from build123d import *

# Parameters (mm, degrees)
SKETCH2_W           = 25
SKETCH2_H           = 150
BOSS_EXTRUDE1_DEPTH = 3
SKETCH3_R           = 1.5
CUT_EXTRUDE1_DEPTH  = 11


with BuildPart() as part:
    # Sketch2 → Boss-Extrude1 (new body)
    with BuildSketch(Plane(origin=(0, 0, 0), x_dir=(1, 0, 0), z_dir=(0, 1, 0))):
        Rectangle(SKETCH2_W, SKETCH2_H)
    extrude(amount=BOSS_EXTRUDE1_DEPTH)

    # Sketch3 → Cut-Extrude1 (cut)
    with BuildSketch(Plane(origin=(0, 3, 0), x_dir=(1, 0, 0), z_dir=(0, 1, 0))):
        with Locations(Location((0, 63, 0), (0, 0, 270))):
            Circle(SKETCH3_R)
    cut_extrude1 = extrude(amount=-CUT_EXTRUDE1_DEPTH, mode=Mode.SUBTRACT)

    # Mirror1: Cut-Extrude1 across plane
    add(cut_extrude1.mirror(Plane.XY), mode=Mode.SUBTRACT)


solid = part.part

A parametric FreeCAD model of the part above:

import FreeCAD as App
import Part
import Sketcher
from FreeCAD import Vector
Q = App.Units.Quantity

doc = App.newDocument("Part")
body = doc.addObject("PartDesign::Body", "Body")

sketch1 = body.newObject("Sketcher::SketchObject", "Sketch")
sketch1.AttachmentSupport = (doc.getObject("XZ_Plane"), [""])
sketch1.MapMode = "FlatFace"
sketch1.addGeometry(Part.LineSegment(Vector(-12.5, -75, 0), Vector(-12.5, 75, 0)), False)
sketch1.addGeometry(Part.LineSegment(Vector(-12.5, 75, 0), Vector(12.5, 75, 0)), False)
sketch1.addGeometry(Part.LineSegment(Vector(12.5, 75, 0), Vector(12.5, -75, 0)), False)
sketch1.addGeometry(Part.LineSegment(Vector(12.5, -75, 0), Vector(-12.5, -75, 0)), False)
sketch1.addConstraint(Sketcher.Constraint("Coincident", 0, 2, 1, 1))
sketch1.addConstraint(Sketcher.Constraint("Coincident", 1, 2, 2, 1))
sketch1.addConstraint(Sketcher.Constraint("Coincident", 2, 2, 3, 1))
sketch1.addConstraint(Sketcher.Constraint("Coincident", 3, 2, 0, 1))
sketch1.addConstraint(Sketcher.Constraint("Vertical", 0))
sketch1.addConstraint(Sketcher.Constraint("Horizontal", 1))
sketch1.addConstraint(Sketcher.Constraint("Vertical", 2))
sketch1.addConstraint(Sketcher.Constraint("Horizontal", 3))
sketch1.addConstraint(Sketcher.Constraint("Symmetric", 0, 2, 2, 2, -1, 1))
sketch1.addConstraint(Sketcher.Constraint("DistanceX", 1, 1, 1, 2, Q("25 mm")))
sketch1.addConstraint(Sketcher.Constraint("DistanceY", 0, 1, 0, 2, Q("150 mm")))
pad1 = body.newObject("PartDesign::Pad", "Pad")
pad1.Profile = sketch1
pad1.Length = 3
pad1.Reversed = True

sketch2 = body.newObject("Sketcher::SketchObject", "Sketch001")
sketch2.AttachmentSupport = (doc.getObject("XZ_Plane"), [""])
sketch2.MapMode = "FlatFace"
sketch2.AttachmentOffset = App.Placement(Vector(0, 0, -3), App.Rotation())
sketch2.addGeometry(Part.Circle(Vector(0, -63, 0), Vector(0, 0, 1), 1.5), False)
sketch2.addConstraint(Sketcher.Constraint("PointOnObject", 0, 3, -2))
sketch2.addConstraint(Sketcher.Constraint("Diameter", 0, Q("3 mm")))
sketch2.addConstraint(Sketcher.Constraint("DistanceY", 0, 3, -1, 1, Q("63 mm")))
pocket1 = body.newObject("PartDesign::Pocket", "Pocket")
pocket1.Profile = sketch2
pocket1.Length = 11
pocket1.Reversed = True
doc.recompute()

mirrored = body.newObject("PartDesign::Mirrored", "Mirrored")
mirrored.Originals = [pocket1]
mirrored.MirrorPlane = (doc.getObject("XY_Plane"), [""])
body.Tip = mirrored

doc.recompute()
